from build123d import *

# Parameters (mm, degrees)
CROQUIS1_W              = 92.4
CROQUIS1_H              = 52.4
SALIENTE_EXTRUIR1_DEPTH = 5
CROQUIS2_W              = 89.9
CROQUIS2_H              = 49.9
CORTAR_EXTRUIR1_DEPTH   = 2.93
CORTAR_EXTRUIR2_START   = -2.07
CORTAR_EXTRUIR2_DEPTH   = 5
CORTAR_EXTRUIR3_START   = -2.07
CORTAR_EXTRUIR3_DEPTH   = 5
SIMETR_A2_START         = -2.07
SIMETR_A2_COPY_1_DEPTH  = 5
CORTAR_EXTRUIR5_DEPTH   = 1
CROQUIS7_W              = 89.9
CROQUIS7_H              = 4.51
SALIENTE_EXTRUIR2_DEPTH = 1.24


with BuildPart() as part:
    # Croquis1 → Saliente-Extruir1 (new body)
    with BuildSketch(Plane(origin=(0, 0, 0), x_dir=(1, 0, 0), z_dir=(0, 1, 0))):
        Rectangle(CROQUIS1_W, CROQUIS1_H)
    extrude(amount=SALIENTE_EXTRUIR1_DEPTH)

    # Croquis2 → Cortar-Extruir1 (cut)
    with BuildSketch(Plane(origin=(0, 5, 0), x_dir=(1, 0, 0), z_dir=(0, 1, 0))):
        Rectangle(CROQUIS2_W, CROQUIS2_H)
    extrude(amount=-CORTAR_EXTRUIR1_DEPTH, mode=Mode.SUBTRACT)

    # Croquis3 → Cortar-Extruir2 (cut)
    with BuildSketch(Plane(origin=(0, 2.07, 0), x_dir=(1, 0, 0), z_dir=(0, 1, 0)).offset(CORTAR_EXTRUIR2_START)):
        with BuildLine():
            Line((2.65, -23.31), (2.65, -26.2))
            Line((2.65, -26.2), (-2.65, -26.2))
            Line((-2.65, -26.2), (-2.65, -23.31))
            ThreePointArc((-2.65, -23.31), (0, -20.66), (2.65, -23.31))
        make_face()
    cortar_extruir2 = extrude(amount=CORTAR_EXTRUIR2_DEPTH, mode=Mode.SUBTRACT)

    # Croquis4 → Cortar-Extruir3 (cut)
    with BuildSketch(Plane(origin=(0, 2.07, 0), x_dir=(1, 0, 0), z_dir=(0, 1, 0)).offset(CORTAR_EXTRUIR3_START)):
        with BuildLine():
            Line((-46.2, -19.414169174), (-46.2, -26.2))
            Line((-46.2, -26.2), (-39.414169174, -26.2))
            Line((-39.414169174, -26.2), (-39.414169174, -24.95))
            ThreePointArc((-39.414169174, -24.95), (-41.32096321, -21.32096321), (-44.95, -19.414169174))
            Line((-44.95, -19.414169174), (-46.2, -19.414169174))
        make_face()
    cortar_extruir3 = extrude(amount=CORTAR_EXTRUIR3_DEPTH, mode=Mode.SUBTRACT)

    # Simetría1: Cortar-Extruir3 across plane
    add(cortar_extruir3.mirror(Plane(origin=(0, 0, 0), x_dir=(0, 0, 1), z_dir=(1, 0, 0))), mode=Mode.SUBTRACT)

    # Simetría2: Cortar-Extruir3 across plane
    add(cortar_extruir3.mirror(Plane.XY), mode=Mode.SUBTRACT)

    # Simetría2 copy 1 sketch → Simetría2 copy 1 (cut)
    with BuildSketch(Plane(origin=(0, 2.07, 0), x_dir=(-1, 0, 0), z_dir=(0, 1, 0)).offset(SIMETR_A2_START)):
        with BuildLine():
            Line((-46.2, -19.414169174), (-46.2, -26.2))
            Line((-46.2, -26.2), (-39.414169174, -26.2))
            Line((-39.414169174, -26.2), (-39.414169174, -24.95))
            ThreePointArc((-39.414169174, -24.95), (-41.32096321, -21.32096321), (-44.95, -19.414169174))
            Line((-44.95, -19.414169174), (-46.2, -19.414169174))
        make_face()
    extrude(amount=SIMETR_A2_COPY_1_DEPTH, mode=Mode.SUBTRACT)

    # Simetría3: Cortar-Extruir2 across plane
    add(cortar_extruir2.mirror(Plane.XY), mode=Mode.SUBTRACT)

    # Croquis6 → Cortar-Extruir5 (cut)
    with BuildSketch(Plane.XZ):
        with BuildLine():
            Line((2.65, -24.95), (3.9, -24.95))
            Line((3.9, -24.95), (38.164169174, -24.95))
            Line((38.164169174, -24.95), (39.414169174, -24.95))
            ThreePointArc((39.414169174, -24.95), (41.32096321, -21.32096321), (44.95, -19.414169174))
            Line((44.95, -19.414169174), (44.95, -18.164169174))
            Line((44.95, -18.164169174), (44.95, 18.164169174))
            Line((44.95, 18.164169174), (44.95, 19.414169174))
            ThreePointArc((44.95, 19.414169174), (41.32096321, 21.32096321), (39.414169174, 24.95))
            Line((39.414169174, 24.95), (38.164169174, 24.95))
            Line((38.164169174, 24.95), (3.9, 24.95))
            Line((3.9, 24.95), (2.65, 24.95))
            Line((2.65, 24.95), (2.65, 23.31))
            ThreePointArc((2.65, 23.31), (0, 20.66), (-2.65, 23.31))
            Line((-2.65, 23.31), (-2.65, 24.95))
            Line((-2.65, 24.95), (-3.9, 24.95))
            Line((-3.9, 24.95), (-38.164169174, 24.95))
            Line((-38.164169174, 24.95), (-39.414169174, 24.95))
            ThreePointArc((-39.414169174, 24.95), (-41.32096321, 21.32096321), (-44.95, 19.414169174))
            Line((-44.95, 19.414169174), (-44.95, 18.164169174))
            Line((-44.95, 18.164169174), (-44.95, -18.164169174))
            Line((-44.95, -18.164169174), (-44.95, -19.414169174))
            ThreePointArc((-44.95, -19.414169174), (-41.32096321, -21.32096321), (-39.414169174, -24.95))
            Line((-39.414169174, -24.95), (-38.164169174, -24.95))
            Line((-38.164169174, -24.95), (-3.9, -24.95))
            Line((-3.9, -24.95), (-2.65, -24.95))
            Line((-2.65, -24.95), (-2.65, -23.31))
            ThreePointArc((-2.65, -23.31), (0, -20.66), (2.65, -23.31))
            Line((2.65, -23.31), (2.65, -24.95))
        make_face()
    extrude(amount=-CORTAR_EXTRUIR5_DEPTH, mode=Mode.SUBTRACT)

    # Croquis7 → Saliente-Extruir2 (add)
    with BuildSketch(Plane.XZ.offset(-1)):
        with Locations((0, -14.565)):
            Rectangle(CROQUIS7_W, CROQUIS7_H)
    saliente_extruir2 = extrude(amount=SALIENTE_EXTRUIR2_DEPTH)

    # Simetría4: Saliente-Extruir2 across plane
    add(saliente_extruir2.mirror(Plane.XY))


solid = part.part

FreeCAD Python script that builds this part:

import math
import FreeCAD as App
import Part
import Sketcher

V = App.Vector
Q = App.Units.Quantity


def add_polygon(sketch, points):
    """Adds a closed chain of lines whose ends are joined by coincident constraints."""
    first, n = sketch.GeometryCount, len(points)
    for a, b in zip(points, points[1:] + points[:1]):
        sketch.addGeometry(Part.LineSegment(App.Vector(*a, 0), App.Vector(*b, 0)), False)
    for i in range(n):
        sketch.addConstraint(Sketcher.Constraint("Coincident", first + i, 2, first + (i + 1) % n, 1))

doc = App.newDocument("Part")
body = doc.addObject("PartDesign::Body", "Body")

sketch1 = body.newObject("Sketcher::SketchObject", "Sketch")
sketch1.AttachmentSupport = (doc.getObject("XZ_Plane"), [""])
sketch1.MapMode = "FlatFace"
add_polygon(sketch1, [(-46.2, -26.2), (-46.2, 26.2), (46.2, 26.2), (46.2, -26.2)])
sketch1.addConstraint([
    Sketcher.Constraint("Vertical", 0),
    Sketcher.Constraint("Horizontal", 1),
    Sketcher.Constraint("Vertical", 2),
    Sketcher.Constraint("Horizontal", 3),
    Sketcher.Constraint("Symmetric", 0, 2, 2, 2, -1, 1),
    Sketcher.Constraint("DistanceX", 1, 1, 1, 2, Q("92.4 mm")),
    Sketcher.Constraint("DistanceY", 0, 1, 0, 2, Q("52.4 mm")),
])
pad1 = body.newObject("PartDesign::Pad", "Pad")
pad1.Profile = sketch1
pad1.Length = 5
pad1.Reversed = True

sketch2 = body.newObject("Sketcher::SketchObject", "Sketch001")
sketch2.AttachmentSupport = (doc.getObject("XZ_Plane"), [""])
sketch2.MapMode = "FlatFace"
sketch2.AttachmentOffset = App.Placement(V(0, 0, -5), App.Rotation())
add_polygon(sketch2, [(-44.95, -24.95), (-44.95, 24.95), (44.95, 24.95), (44.95, -24.95)])
sketch2.addConstraint([
    Sketcher.Constraint("Vertical", 0),
    Sketcher.Constraint("Horizontal", 1),
    Sketcher.Constraint("Vertical", 2),
    Sketcher.Constraint("Horizontal", 3),
    Sketcher.Constraint("Symmetric", 0, 2, 2, 2, -1, 1),
    Sketcher.Constraint("DistanceX", 1, 1, 1, 2, Q("89.9 mm")),
    Sketcher.Constraint("DistanceY", 0, 1, 0, 2, Q("49.9 mm")),
])
pocket1 = body.newObject("PartDesign::Pocket", "Pocket")
pocket1.Profile = sketch2
pocket1.Length = 2.93
pocket1.Reversed = True

sketch3 = body.newObject("Sketcher::SketchObject", "Sketch002")
sketch3.AttachmentSupport = (doc.getObject("XZ_Plane"), [""])
sketch3.MapMode = "FlatFace"
sketch3.addGeometry([
    Part.LineSegment(V(2.65, 26.2, 0), V(2.65, 23.31, 0)),
    Part.ArcOfCircle(Part.Circle(V(0, 23.31, 0), V(0, 0, 1), 2.65), math.radians(180), math.radians(360)),
    Part.LineSegment(V(-2.65, 23.31, 0), V(-2.65, 26.2, 0)),
    Part.LineSegment(V(-2.65, 26.2, 0), V(2.65, 26.2, 0)),
], False)
sketch3.addConstraint([
    Sketcher.Constraint("Tangent", 0, 2, 1, 2),
    Sketcher.Constraint("Tangent", 1, 1, 2, 1),
    Sketcher.Constraint("Coincident", 2, 2, 3, 1),
    Sketcher.Constraint("Coincident", 3, 2, 0, 1),
    Sketcher.Constraint("Vertical", 0),
    Sketcher.Constraint("Vertical", 2),
    Sketcher.Constraint("Horizontal", 3),
    Sketcher.Constraint("PointOnObject", 1, 3, -2),
    Sketcher.Constraint("Radius", 1, Q("2.65 mm")),
    Sketcher.Constraint("DistanceY", 0, 2, 0, 1, Q("2.89 mm")),
    Sketcher.Constraint("DistanceY", -1, 1, 2, 2, Q("26.2 mm")),
])
pocket2 = body.newObject("PartDesign::Pocket", "Pocket001")
pocket2.Profile = sketch3
pocket2.Length = 5

sketch4 = body.newObject("Sketcher::SketchObject", "Sketch003")
sketch4.AttachmentSupport = (doc.getObject("XZ_Plane"), [""])
sketch4.MapMode = "FlatFace"
sketch4.addGeometry([
    Part.LineSegment(V(-46.2, 19.414169, 0), V(-46.2, 26.2, 0)),
    Part.LineSegment(V(-46.2, 26.2, 0), V(-39.414169, 26.2, 0)),
    Part.LineSegment(V(-39.414169, 26.2, 0), V(-39.414169, 24.95, 0)),
    Part.ArcOfCircle(Part.Circle(V(-46.2, 26.2, 0), V(0, 0, 1), 6.9), math.radians(-79.5627), math.radians(-10.4373)),
    Part.LineSegment(V(-44.95, 19.414169, 0), V(-46.2, 19.414169, 0)),
], False)
sketch4.addConstraint([
    Sketcher.Constraint("Coincident", 0, 2, 1, 1),
    Sketcher.Constraint("Coincident", 1, 2, 2, 1),
    Sketcher.Constraint("Coincident", 2, 2, 3, 2),
    Sketcher.Constraint("Coincident", 3, 1, 4, 1),
    Sketcher.Constraint("Coincident", 4, 2, 0, 1),
    Sketcher.Constraint("Vertical", 0),
    Sketcher.Constraint("Horizontal", 1),
    Sketcher.Constraint("Vertical", 2),
    Sketcher.Constraint("Horizontal", 4),
    Sketcher.Constraint("Coincident", 0, 2, 3, 3),
    Sketcher.Constraint("Equal", 1, 0),
    Sketcher.Constraint("Radius", 3, Q("6.9 mm")),
    Sketcher.Constraint("DistanceX", 4, 2, 4, 1, Q("1.25 mm")),
    Sketcher.Constraint("DistanceX", 3, 3, -1, 1, Q("46.2 mm")),
    Sketcher.Constraint("DistanceY", -1, 1, 3, 3, Q("26.2 mm")),
])
pocket3 = body.newObject("PartDesign::Pocket", "Pocket002")
pocket3.Profile = sketch4
pocket3.Length = 5
doc.recompute()

mirrored = body.newObject("PartDesign::Mirrored", "Mirrored")
mirrored.Originals = [pocket3]
mirrored.MirrorPlane = (doc.getObject("YZ_Plane"), [""])
body.Tip = mirrored
doc.recompute()

mirrored2 = body.newObject("PartDesign::Mirrored", "Mirrored001")
mirrored2.Originals = [pocket3]
mirrored2.MirrorPlane = (doc.getObject("XY_Plane"), [""])
body.Tip = mirrored2

sketch5 = body.newObject("Sketcher::SketchObject", "Sketch004")
sketch5.AttachmentSupport = (doc.getObject("XZ_Plane"), [""])
sketch5.MapMode = "FlatFace"
sketch5.addGeometry([
    Part.LineSegment(V(46.2, -19.414169, 0), V(46.2, -26.2, 0)),
    Part.LineSegment(V(46.2, -26.2, 0), V(39.414169, -26.2, 0)),
    Part.LineSegment(V(39.414169, -26.2, 0), V(39.414169, -24.95, 0)),
    Part.ArcOfCircle(Part.Circle(V(46.2, -26.2, 0), V(0, 0, 1), 6.9), math.radians(100.4373), math.radians(169.5627)),
    Part.LineSegment(V(44.95, -19.414169, 0), V(46.2, -19.414169, 0)),
], False)
sketch5.addConstraint([
    Sketcher.Constraint("Coincident", 0, 2, 1, 1),
    Sketcher.Constraint("Coincident", 1, 2, 2, 1),
    Sketcher.Constraint("Coincident", 2, 2, 3, 2),
    Sketcher.Constraint("Coincident", 3, 1, 4, 1),
    Sketcher.Constraint("Coincident", 4, 2, 0, 1),
    Sketcher.Constraint("Vertical", 0),
    Sketcher.Constraint("Horizontal", 1),
    Sketcher.Constraint("Vertical", 2),
    Sketcher.Constraint("Horizontal", 4),
    Sketcher.Constraint("Coincident", 0, 2, 3, 3),
    Sketcher.Constraint("Equal", 1, 0),
    Sketcher.Constraint("Radius", 3, Q("6.9 mm")),
    Sketcher.Constraint("DistanceX", 4, 1, 4, 2, Q("1.25 mm")),
    Sketcher.Constraint("DistanceX", -1, 1, 3, 3, Q("46.2 mm")),
    Sketcher.Constraint("DistanceY", 3, 3, -1, 1, Q("26.2 mm")),
])
pocket4 = body.newObject("PartDesign::Pocket", "Pocket003")
pocket4.Profile = sketch5
pocket4.Length = 5
doc.recompute()

mirrored3 = body.newObject("PartDesign::Mirrored", "Mirrored002")
mirrored3.Originals = [pocket2]
mirrored3.MirrorPlane = (doc.getObject("XY_Plane"), [""])
body.Tip = mirrored3

sketch6 = body.newObject("Sketcher::SketchObject", "Sketch005")
sketch6.AttachmentSupport = (doc.getObject("XZ_Plane"), [""])
sketch6.MapMode = "FlatFace"
sketch6.addGeometry([
    Part.LineSegment(V(2.65, -24.95, 0), V(39.414169, -24.95, 0)),
    Part.ArcOfCircle(Part.Circle(V(46.2, -26.2, 0), V(0, 0, 1), 6.9), math.radians(100.4373), math.radians(169.5627)),
    Part.LineSegment(V(44.95, -19.414169, 0), V(44.95, 19.414169, 0)),
    Part.ArcOfCircle(Part.Circle(V(46.2, 26.2, 0), V(0, 0, 1), 6.9), math.radians(-169.5627), math.radians(-100.4373)),
    Part.LineSegment(V(39.414169, 24.95, 0), V(2.65, 24.95, 0)),
    Part.LineSegment(V(2.65, 24.95, 0), V(2.65, 23.31, 0)),
    Part.ArcOfCircle(Part.Circle(V(0, 23.31, 0), V(0, 0, 1), 2.65), math.radians(180), math.radians(360)),
    Part.LineSegment(V(-2.65, 23.31, 0), V(-2.65, 24.95, 0)),
    Part.LineSegment(V(-2.65, 24.95, 0), V(-39.414169, 24.95, 0)),
    Part.ArcOfCircle(Part.Circle(V(-46.2, 26.2, 0), V(0, 0, 1), 6.9), math.radians(-79.5627), math.radians(-10.4373)),
    Part.LineSegment(V(-44.95, 19.414169, 0), V(-44.95, -19.414169, 0)),
    Part.ArcOfCircle(Part.Circle(V(-46.2, -26.2, 0), V(0, 0, 1), 6.9), math.radians(10.4373), math.radians(79.5627)),
    Part.LineSegment(V(-39.414169, -24.95, 0), V(-2.65, -24.95, 0)),
    Part.LineSegment(V(-2.65, -24.95, 0), V(-2.65, -23.31, 0)),
    Part.ArcOfCircle(Part.Circle(V(0, -23.31, 0), V(0, 0, 1), 2.65), math.radians(0), math.radians(180)),
    Part.LineSegment(V(2.65, -23.31, 0), V(2.65, -24.95, 0)),
], False)
sketch6.addConstraint([
    Sketcher.Constraint("Coincident", 0, 2, 1, 2),
    Sketcher.Constraint("Coincident", 1, 1, 2, 1),
    Sketcher.Constraint("Coincident", 2, 2, 3, 2),
    Sketcher.Constraint("Coincident", 3, 1, 4, 1),
    Sketcher.Constraint("Coincident", 4, 2, 5, 1),
    Sketcher.Constraint("Tangent", 5, 2, 6, 2),
    Sketcher.Constraint("Tangent", 6, 1, 7, 1),
    Sketcher.Constraint("Coincident", 7, 2, 8, 1),
    Sketcher.Constraint("Coincident", 8, 2, 9, 2),
    Sketcher.Constraint("Coincident", 9, 1, 10, 1),
    Sketcher.Constraint("Coincident", 10, 2, 11, 2),
    Sketcher.Constraint("Coincident", 11, 1, 12, 1),
    Sketcher.Constraint("Coincident", 12, 2, 13, 1),
    Sketcher.Constraint("Tangent", 13, 2, 14, 2),
    Sketcher.Constraint("Tangent", 14, 1, 15, 1),
    Sketcher.Constraint("Coincident", 15, 2, 0, 1),
    Sketcher.Constraint("Horizontal", 0),
    Sketcher.Constraint("Vertical", 2),
    Sketcher.Constraint("Horizontal", 4),
    Sketcher.Constraint("Vertical", 5),
    Sketcher.Constraint("Vertical", 7),
    Sketcher.Constraint("Horizontal", 8),
    Sketcher.Constraint("Vertical", 10),
    Sketcher.Constraint("Horizontal", 12),
    Sketcher.Constraint("Vertical", 13),
    Sketcher.Constraint("Vertical", 15),
    Sketcher.Constraint("Equal", 1, 3),
    Sketcher.Constraint("Equal", 3, 9),
    Sketcher.Constraint("Equal", 9, 11),
    Sketcher.Constraint("Equal", 6, 14),
    Sketcher.Constraint("Symmetric", 1, 3, 9, 3, -1, 1),
    Sketcher.Constraint("Symmetric", 3, 3, 11, 3, -1, 1),
    Sketcher.Constraint("Symmetric", 6, 3, 14, 3, -1, 1),
    Sketcher.Constraint("Symmetric", 3, 3, 9, 3, -2),
    Sketcher.Constraint("Symmetric", 4, 2, 7, 2, -2),
    Sketcher.Constraint("Horizontal", 2, 2, 9, 1),
    Sketcher.Constraint("Horizontal", 0, 2, 11, 1),
    Sketcher.Constraint("Vertical", 0, 2, 3, 1),
    Sketcher.Constraint("Radius", 1, Q("6.9 mm")),
    Sketcher.Constraint("Radius", 6, Q("2.65 mm")),
    Sketcher.Constraint("DistanceY", 5, 2, 5, 1, Q("1.64 mm")),
    Sketcher.Constraint("DistanceX", -1, 1, 1, 3, Q("46.2 mm")),
    Sketcher.Constraint("DistanceY", 1, 3, -1, 1, Q("26.2 mm")),
    Sketcher.Constraint("DistanceY", 0, 2, 3, 1, Q("49.9 mm")),
    Sketcher.Constraint("DistanceX", 4, 2, 2, 2, Q("42.3 mm")),
])
pocket5 = body.newObject("PartDesign::Pocket", "Pocket004")
pocket5.Profile = sketch6
pocket5.Length = 1

sketch7 = body.newObject("Sketcher::SketchObject", "Sketch006")
sketch7.AttachmentSupport = (doc.getObject("XZ_Plane"), [""])
sketch7.MapMode = "FlatFace"
sketch7.AttachmentOffset = App.Placement(V(0, 0, -1), App.Rotation())
add_polygon(sketch7, [(-44.95, -12.31), (-44.95, -16.82), (44.95, -16.82), (44.95, -12.31)])
sketch7.addConstraint([
    Sketcher.Constraint("Vertical", 0),
    Sketcher.Constraint("Horizontal", 1),
    Sketcher.Constraint("Vertical", 2),
    Sketcher.Constraint("Horizontal", 3),
    Sketcher.Constraint("DistanceX", 1, 1, 1, 2, Q("89.9 mm")),
    Sketcher.Constraint("DistanceY", 0, 2, 0, 1, Q("4.51 mm")),
    Sketcher.Constraint("DistanceX", 0, 2, -1, 1, Q("44.95 mm")),
    Sketcher.Constraint("DistanceY", 0, 2, -1, 1, Q("16.82 mm")),
])
pad2 = body.newObject("PartDesign::Pad", "Pad001")
pad2.Profile = sketch7
pad2.Length = 1.24
doc.recompute()

mirrored4 = body.newObject("PartDesign::Mirrored", "Mirrored003")
mirrored4.Originals = [pad2]
mirrored4.MirrorPlane = (doc.getObject("XY_Plane"), [""])
body.Tip = mirrored4

doc.recompute()
